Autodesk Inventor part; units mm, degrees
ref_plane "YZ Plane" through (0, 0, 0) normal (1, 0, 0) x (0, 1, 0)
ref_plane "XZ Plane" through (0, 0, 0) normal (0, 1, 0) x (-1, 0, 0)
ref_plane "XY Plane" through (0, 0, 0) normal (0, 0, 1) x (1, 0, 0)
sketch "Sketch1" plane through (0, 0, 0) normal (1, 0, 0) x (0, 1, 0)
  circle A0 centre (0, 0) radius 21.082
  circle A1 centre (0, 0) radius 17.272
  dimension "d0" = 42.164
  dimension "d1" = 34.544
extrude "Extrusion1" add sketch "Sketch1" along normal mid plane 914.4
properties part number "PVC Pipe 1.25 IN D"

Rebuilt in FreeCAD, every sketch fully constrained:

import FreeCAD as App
import Part
import Sketcher
Q = App.Units.Quantity

doc = App.newDocument("Part")
body = doc.addObject("PartDesign::Body", "Body")

# Sketch on YZ plane
sketch1 = doc.addObject("Sketcher::SketchObject", "Sketch")
body.addObject(sketch1)
sketch1.AttachmentSupport = (doc.YZ_Plane, [""])
sketch1.MapMode = "FlatFace"
sketch1.addGeometry(Part.Circle(App.Vector(0, 0, 0), App.Vector(0, 0, 1), 21.082), False)
sketch1.addGeometry(Part.Circle(App.Vector(0, 0, 0), App.Vector(0, 0, 1), 17.272), False)
sketch1.addConstraint(Sketcher.Constraint("Coincident", 0, 3, -1, 1))
sketch1.addConstraint(Sketcher.Constraint("Coincident", 1, 3, -1, 1))
sketch1.addConstraint(Sketcher.Constraint("Diameter", 0, Q("1.66 in")))
sketch1.addConstraint(Sketcher.Constraint("Diameter", 1, Q("1.36 in")))
pad1 = doc.addObject("PartDesign::Pad", "Pad")
body.addObject(pad1)
pad1.Profile = sketch1
pad1.Length = Q("36 in")
pad1.Midplane = True

doc.recompute()
